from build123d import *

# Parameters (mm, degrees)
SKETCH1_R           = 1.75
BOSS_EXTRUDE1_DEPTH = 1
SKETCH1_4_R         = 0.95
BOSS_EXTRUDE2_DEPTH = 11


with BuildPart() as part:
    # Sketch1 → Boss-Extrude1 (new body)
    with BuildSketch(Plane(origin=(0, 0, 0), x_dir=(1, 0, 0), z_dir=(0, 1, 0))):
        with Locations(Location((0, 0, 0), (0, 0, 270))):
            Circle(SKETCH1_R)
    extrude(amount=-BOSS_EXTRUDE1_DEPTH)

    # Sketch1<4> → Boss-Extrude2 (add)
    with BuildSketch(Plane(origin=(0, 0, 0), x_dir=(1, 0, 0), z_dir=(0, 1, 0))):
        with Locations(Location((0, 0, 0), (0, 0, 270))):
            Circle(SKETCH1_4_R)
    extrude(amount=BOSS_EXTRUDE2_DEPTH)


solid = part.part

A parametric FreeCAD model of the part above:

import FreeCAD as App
import Part
import Sketcher
from FreeCAD import Vector

doc = App.newDocument("Part")
body = doc.addObject("PartDesign::Body", "Body")

# Sketch on XZ plane
sketch1 = body.newObject("Sketcher::SketchObject", "Sketch")
sketch1.AttachmentSupport = (doc.getObject("XZ_Plane"), [""])
sketch1.MapMode = "FlatFace"
sketch1.addGeometry(Part.Circle(Vector(0, 0, 0), Vector(0, 0, 1), 1.75), False)
sketch1.addConstraint([
    Sketcher.Constraint("Coincident", 0, 3, -1, 1),
    Sketcher.Constraint("Diameter", 0, 3.5),
])
pad1 = body.newObject("PartDesign::Pad", "Pad")
pad1.Profile = sketch1
pad1.Length = 1

# Sketch on XZ plane
sketch2 = body.newObject("Sketcher::SketchObject", "Sketch001")
sketch2.AttachmentSupport = (doc.getObject("XZ_Plane"), [""])
sketch2.MapMode = "FlatFace"
sketch2.addGeometry(Part.Circle(Vector(0, 0, 0), Vector(0, 0, 1), 0.95), False)
sketch2.addConstraint([
    Sketcher.Constraint("Coincident", 0, 3, -1, 1),
    Sketcher.Constraint("Diameter", 0, 1.9),
])
pad2 = body.newObject("PartDesign::Pad", "Pad001")
pad2.Profile = sketch2
pad2.Length = 11
pad2.Reversed = True

doc.recompute()
